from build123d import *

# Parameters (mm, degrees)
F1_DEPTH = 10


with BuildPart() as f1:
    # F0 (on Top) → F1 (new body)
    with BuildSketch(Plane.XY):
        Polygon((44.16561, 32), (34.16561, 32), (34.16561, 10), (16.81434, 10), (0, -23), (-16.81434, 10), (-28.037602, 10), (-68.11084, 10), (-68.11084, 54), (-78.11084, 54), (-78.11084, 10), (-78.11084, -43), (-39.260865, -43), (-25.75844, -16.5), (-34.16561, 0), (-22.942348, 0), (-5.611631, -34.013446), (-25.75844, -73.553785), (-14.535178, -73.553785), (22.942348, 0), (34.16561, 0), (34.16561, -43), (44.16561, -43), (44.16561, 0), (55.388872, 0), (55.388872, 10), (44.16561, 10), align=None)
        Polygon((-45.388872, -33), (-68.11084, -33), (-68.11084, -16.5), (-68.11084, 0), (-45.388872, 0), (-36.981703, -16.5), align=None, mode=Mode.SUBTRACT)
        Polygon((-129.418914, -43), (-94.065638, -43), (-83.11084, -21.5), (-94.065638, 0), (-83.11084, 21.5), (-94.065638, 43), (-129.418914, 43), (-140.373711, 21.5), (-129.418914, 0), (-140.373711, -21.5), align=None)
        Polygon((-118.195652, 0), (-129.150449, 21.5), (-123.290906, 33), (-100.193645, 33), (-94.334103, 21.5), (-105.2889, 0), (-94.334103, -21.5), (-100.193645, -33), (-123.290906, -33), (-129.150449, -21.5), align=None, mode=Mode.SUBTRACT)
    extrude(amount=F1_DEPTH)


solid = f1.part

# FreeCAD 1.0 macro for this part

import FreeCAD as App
import Part
import Sketcher
Q = App.Units.Quantity

doc = App.newDocument("Part")
body = doc.addObject("PartDesign::Body", "Body")
body.AllowCompound = True

# Sketch on XY plane
sketch1 = body.newObject("Sketcher::SketchObject", "Sketch")
sketch1.AttachmentSupport = (doc.getObject("XY_Plane"), [""])
sketch1.MapMode = "FlatFace"
sketch1.addGeometry([
    Part.LineSegment(App.Vector(44, 32, 0), App.Vector(34, 32, 0)),  # 0
    Part.LineSegment(App.Vector(34, 32, 0), App.Vector(34, 10, 0)),  # 1
    Part.LineSegment(App.Vector(34, 10, 0), App.Vector(17, 10, 0)),  # 2
    Part.LineSegment(App.Vector(17, 10, 0), App.Vector(0, -23, 0)),  # 3
    Part.LineSegment(App.Vector(0, -23, 0), App.Vector(-17, 10, 0)),  # 4
    Part.LineSegment(App.Vector(-17, 10, 0), App.Vector(-68, 10, 0)),  # 5
    Part.LineSegment(App.Vector(-68, 10, 0), App.Vector(-68, 54, 0)),  # 6
    Part.LineSegment(App.Vector(-68, 54, 0), App.Vector(-78, 54, 0)),  # 7
    Part.LineSegment(App.Vector(-78, 54, 0), App.Vector(-78, -43, 0)),  # 8
    Part.LineSegment(App.Vector(-78, -43, 0), App.Vector(-39, -43, 0)),  # 9
    Part.LineSegment(App.Vector(-39, -43, 0), App.Vector(-26, -16, 0)),  # 10
    Part.LineSegment(App.Vector(-26, -16, 0), App.Vector(-34, 0, 0)),  # 11
    Part.LineSegment(App.Vector(-34, 0, 0), App.Vector(-23, 0, 0)),  # 12
    Part.LineSegment(App.Vector(-23, 0, 0), App.Vector(-6, -34, 0)),  # 13
    Part.LineSegment(App.Vector(-6, -34, 0), App.Vector(-26, -74, 0)),  # 14
    Part.LineSegment(App.Vector(-26, -74, 0), App.Vector(-15, -74, 0)),  # 15
    Part.LineSegment(App.Vector(-15, -74, 0), App.Vector(23, 0, 0)),  # 16
    Part.LineSegment(App.Vector(23, 0, 0), App.Vector(34, 0, 0)),  # 17
    Part.LineSegment(App.Vector(34, 0, 0), App.Vector(34, -43, 0)),  # 18
    Part.LineSegment(App.Vector(34, -43, 0), App.Vector(44, -43, 0)),  # 19
    Part.LineSegment(App.Vector(44, -43, 0), App.Vector(44, 0, 0)),  # 20
    Part.LineSegment(App.Vector(44, 0, 0), App.Vector(55, 0, 0)),  # 21
    Part.LineSegment(App.Vector(55, 0, 0), App.Vector(55, 10, 0)),  # 22
    Part.LineSegment(App.Vector(55, 10, 0), App.Vector(44, 10, 0)),  # 23
    Part.LineSegment(App.Vector(44, 10, 0), App.Vector(44, 32, 0)),  # 24
    Part.LineSegment(App.Vector(-37, -16, 0), App.Vector(-45, -33, 0)),  # 25
    Part.LineSegment(App.Vector(-45, -33, 0), App.Vector(-68, -33, 0)),  # 26
    Part.LineSegment(App.Vector(-68, -33, 0), App.Vector(-68, 0, 0)),  # 27
    Part.LineSegment(App.Vector(-68, 0, 0), App.Vector(-45, 0, 0)),  # 28
    Part.LineSegment(App.Vector(-45, 0, 0), App.Vector(-37, -16, 0)),  # 29
    Part.LineSegment(App.Vector(-129, -43, 0), App.Vector(-94, -43, 0)),  # 30
    Part.LineSegment(App.Vector(-94, -43, 0), App.Vector(-83, -22, 0)),  # 31
    Part.LineSegment(App.Vector(-83, -22, 0), App.Vector(-94, 0, 0)),  # 32
    Part.LineSegment(App.Vector(-94, 0, 0), App.Vector(-83, 22, 0)),  # 33
    Part.LineSegment(App.Vector(-83, 22, 0), App.Vector(-94, 43, 0)),  # 34
    Part.LineSegment(App.Vector(-94, 43, 0), App.Vector(-129, 43, 0)),  # 35
    Part.LineSegment(App.Vector(-129, 43, 0), App.Vector(-140, 22, 0)),  # 36
    Part.LineSegment(App.Vector(-140, 22, 0), App.Vector(-129, 0, 0)),  # 37
    Part.LineSegment(App.Vector(-129, 0, 0), App.Vector(-140, -22, 0)),  # 38
    Part.LineSegment(App.Vector(-140, -22, 0), App.Vector(-129, -43, 0)),  # 39
    Part.LineSegment(App.Vector(-129, -22, 0), App.Vector(-118, 0, 0)),  # 40
    Part.LineSegment(App.Vector(-118, 0, 0), App.Vector(-129, 22, 0)),  # 41
    Part.LineSegment(App.Vector(-129, 22, 0), App.Vector(-123, 33, 0)),  # 42
    Part.LineSegment(App.Vector(-123, 33, 0), App.Vector(-100, 33, 0)),  # 43
    Part.LineSegment(App.Vector(-100, 33, 0), App.Vector(-94, 22, 0)),  # 44
    Part.LineSegment(App.Vector(-94, 22, 0), App.Vector(-105, 0, 0)),  # 45
    Part.LineSegment(App.Vector(-105, 0, 0), App.Vector(-94, -22, 0)),  # 46
    Part.LineSegment(App.Vector(-94, -22, 0), App.Vector(-100, -33, 0)),  # 47
    Part.LineSegment(App.Vector(-100, -33, 0), App.Vector(-123, -33, 0)),  # 48
    Part.LineSegment(App.Vector(-123, -33, 0), App.Vector(-129, -22, 0)),  # 49
], False)
sketch1.addConstraint([
    Sketcher.Constraint("Coincident", 0, 2, 1, 1),
    Sketcher.Constraint("Coincident", 1, 2, 2, 1),
    Sketcher.Constraint("Coincident", 2, 2, 3, 1),
    Sketcher.Constraint("Coincident", 3, 2, 4, 1),
    Sketcher.Constraint("Coincident", 4, 2, 5, 1),
    Sketcher.Constraint("Coincident", 5, 2, 6, 1),
    Sketcher.Constraint("Coincident", 6, 2, 7, 1),
    Sketcher.Constraint("Coincident", 7, 2, 8, 1),
    Sketcher.Constraint("Coincident", 8, 2, 9, 1),
    Sketcher.Constraint("Coincident", 9, 2, 10, 1),
    Sketcher.Constraint("Coincident", 10, 2, 11, 1),
    Sketcher.Constraint("Coincident", 11, 2, 12, 1),
    Sketcher.Constraint("Coincident", 12, 2, 13, 1),
    Sketcher.Constraint("Coincident", 13, 2, 14, 1),
    Sketcher.Constraint("Coincident", 14, 2, 15, 1),
    Sketcher.Constraint("Coincident", 15, 2, 16, 1),
    Sketcher.Constraint("Coincident", 16, 2, 17, 1),
    Sketcher.Constraint("Coincident", 17, 2, 18, 1),
    Sketcher.Constraint("Coincident", 18, 2, 19, 1),
    Sketcher.Constraint("Coincident", 19, 2, 20, 1),
    Sketcher.Constraint("Coincident", 20, 2, 21, 1),
    Sketcher.Constraint("Coincident", 21, 2, 22, 1),
    Sketcher.Constraint("Coincident", 22, 2, 23, 1),
    Sketcher.Constraint("Coincident", 23, 2, 24, 1),
    Sketcher.Constraint("Coincident", 24, 2, 0, 1),
    Sketcher.Constraint("Coincident", 25, 2, 26, 1),
    Sketcher.Constraint("Coincident", 26, 2, 27, 1),
    Sketcher.Constraint("Coincident", 27, 2, 28, 1),
    Sketcher.Constraint("Coincident", 28, 2, 29, 1),
    Sketcher.Constraint("Coincident", 29, 2, 25, 1),
    Sketcher.Constraint("Coincident", 30, 2, 31, 1),
    Sketcher.Constraint("Coincident", 31, 2, 32, 1),
    Sketcher.Constraint("Coincident", 32, 2, 33, 1),
    Sketcher.Constraint("Coincident", 33, 2, 34, 1),
    Sketcher.Constraint("Coincident", 34, 2, 35, 1),
    Sketcher.Constraint("Coincident", 35, 2, 36, 1),
    Sketcher.Constraint("Coincident", 36, 2, 37, 1),
    Sketcher.Constraint("Coincident", 37, 2, 38, 1),
    Sketcher.Constraint("Coincident", 38, 2, 39, 1),
    Sketcher.Constraint("Coincident", 39, 2, 30, 1),
    Sketcher.Constraint("Coincident", 40, 2, 41, 1),
    Sketcher.Constraint("Coincident", 41, 2, 42, 1),
    Sketcher.Constraint("Coincident", 42, 2, 43, 1),
    Sketcher.Constraint("Coincident", 43, 2, 44, 1),
    Sketcher.Constraint("Coincident", 44, 2, 45, 1),
    Sketcher.Constraint("Coincident", 45, 2, 46, 1),
    Sketcher.Constraint("Coincident", 46, 2, 47, 1),
    Sketcher.Constraint("Coincident", 47, 2, 48, 1),
    Sketcher.Constraint("Coincident", 48, 2, 49, 1),
    Sketcher.Constraint("Coincident", 49, 2, 40, 1),
    Sketcher.Constraint("Horizontal", 0),
    Sketcher.Constraint("Vertical", 1),
    Sketcher.Constraint("Horizontal", 2),
    Sketcher.Constraint("Horizontal", 5),
    Sketcher.Constraint("Vertical", 6),
    Sketcher.Constraint("Horizontal", 7),
    Sketcher.Constraint("Vertical", 8),
    Sketcher.Constraint("Horizontal", 9),
    Sketcher.Constraint("Horizontal", 12),
    Sketcher.Constraint("Horizontal", 15),
    Sketcher.Constraint("Horizontal", 17),
    Sketcher.Constraint("Vertical", 18),
    Sketcher.Constraint("Horizontal", 19),
    Sketcher.Constraint("Vertical", 20),
    Sketcher.Constraint("Horizontal", 21),
    Sketcher.Constraint("Vertical", 22),
    Sketcher.Constraint("Horizontal", 23),
    Sketcher.Constraint("Vertical", 24),
    Sketcher.Constraint("Horizontal", 26),
    Sketcher.Constraint("Vertical", 27),
    Sketcher.Constraint("Horizontal", 28),
    Sketcher.Constraint("Horizontal", 30),
    Sketcher.Constraint("Horizontal", 35),
    Sketcher.Constraint("Horizontal", 43),
    Sketcher.Constraint("Horizontal", 48),
    Sketcher.Constraint("Symmetric", 12, 2, 16, 2, -1, 1),
    Sketcher.Constraint("Symmetric", 2, 2, 4, 2, -2),
    Sketcher.Constraint("Symmetric", 11, 2, 17, 2, -2),
    Sketcher.Constraint("Symmetric", 31, 2, 33, 2, -1),
    Sketcher.Constraint("Symmetric", 30, 2, 34, 2, -1),
    Sketcher.Constraint("Symmetric", 36, 2, 38, 2, -1),
    Sketcher.Constraint("Symmetric", 44, 2, 46, 2, -1),
    Sketcher.Constraint("Symmetric", 43, 2, 47, 2, -1),
    Sketcher.Constraint("Symmetric", 41, 2, 49, 2, -1),
    Sketcher.Constraint("PointOnObject", 3, 2, -2),
    Sketcher.Constraint("PointOnObject", 20, 2, -1),
    Sketcher.Constraint("PointOnObject", 27, 2, -1),
    Sketcher.Constraint("PointOnObject", 32, 2, -1),
    Sketcher.Constraint("PointOnObject", 37, 2, -1),
    Sketcher.Constraint("PointOnObject", 40, 2, -1),
    Sketcher.Constraint("PointOnObject", 45, 2, -1),
    Sketcher.Constraint("Parallel", 3, 10),
    Sketcher.Constraint("Parallel", 4, 11),
    Sketcher.Constraint("Parallel", 11, 13),
    Sketcher.Constraint("Parallel", 10, 14),
    Sketcher.Constraint("Parallel", 14, 16),
    Sketcher.Constraint("Parallel", 16, 25),
    Sketcher.Constraint("Parallel", 13, 29),
    Sketcher.Constraint("Parallel", 25, 31),
    Sketcher.Constraint("Parallel", 29, 32),
    Sketcher.Constraint("Parallel", 33, 36),
    Sketcher.Constraint("Parallel", 34, 37),
    Sketcher.Constraint("Parallel", 37, 39),
    Sketcher.Constraint("Parallel", 38, 40),
    Sketcher.Constraint("Parallel", 40, 42),
    Sketcher.Constraint("Parallel", 41, 44),
    Sketcher.Constraint("Parallel", 42, 45),
    Sketcher.Constraint("Parallel", 46, 49),
    Sketcher.Constraint("Horizontal", 9, 2, 18, 2),
    Sketcher.Constraint("Horizontal", 5, 2, 22, 2),
    Sketcher.Constraint("Horizontal", 10, 2, 29, 2),
    Sketcher.Constraint("Horizontal", 19, 2, 30, 2),
    Sketcher.Constraint("Horizontal", 33, 2, 36, 2),
    Sketcher.Constraint("Horizontal", 36, 2, 41, 2),
    Sketcher.Constraint("Horizontal", 41, 2, 44, 2),
    Sketcher.Constraint("Horizontal", 26, 2, 47, 2),
    Sketcher.Constraint("Vertical", 10, 2, 14, 2),
    Sketcher.Constraint("Vertical", 1, 2, 17, 2),
    Sketcher.Constraint("Vertical", 20, 2, 23, 2),
    Sketcher.Constraint("Vertical", 6, 2, 26, 2),
    Sketcher.Constraint("Vertical", 25, 2, 28, 2),
    Sketcher.Constraint("Vertical", 30, 2, 32, 2),
    Sketcher.Constraint("Equal", 0, 7),
    Sketcher.Constraint("Equal", 12, 15),
    Sketcher.Constraint("Equal", 17, 21),
    Sketcher.Constraint("Equal", 19, 22),
    Sketcher.Constraint("DistanceX", 0, 2, 0, 1, 10.0),
    Sketcher.Constraint("DistanceY", 1, 2, 1, 1, 22.0),
    Sketcher.Constraint("DistanceY", 6, 1, 6, 2, 44.0),
    Sketcher.Constraint("DistanceY", 8, 2, 8, 1, 97.0),
    Sketcher.Constraint("DistanceY", 27, 1, 27, 2, 33.0),
    Sketcher.Constraint("Angle", 3, Q("-117 deg")),
    Sketcher.Constraint("DistanceY", 3, 2, -1, 1, 23.0),
    Sketcher.Constraint("DistanceX", 31, 2, 26, 2, 15.0),
    Sketcher.Constraint("DistanceX", 5, 2, 5, 1, 51.2965),
    Sketcher.Constraint("DistanceX", 2, 2, 2, 1, 17.35127),
    Sketcher.Constraint("DistanceX", 21, 1, 21, 2, 11.223262),
    Sketcher.Constraint("DistanceX", 43, 1, 43, 2, 23.097261),
    Sketcher.Constraint("DistanceX", 45, 2, -1, 1, 105.2889),
    Sketcher.Constraint("DistanceX", 26, 2, 26, 1, 22.721968),
    Sketcher.Constraint("DistanceX", 30, 1, 30, 2, 35.353276),
])
pad1 = body.newObject("PartDesign::Pad", "Pad")
pad1.Profile = sketch1
pad1.Length = 10

doc.recompute()
